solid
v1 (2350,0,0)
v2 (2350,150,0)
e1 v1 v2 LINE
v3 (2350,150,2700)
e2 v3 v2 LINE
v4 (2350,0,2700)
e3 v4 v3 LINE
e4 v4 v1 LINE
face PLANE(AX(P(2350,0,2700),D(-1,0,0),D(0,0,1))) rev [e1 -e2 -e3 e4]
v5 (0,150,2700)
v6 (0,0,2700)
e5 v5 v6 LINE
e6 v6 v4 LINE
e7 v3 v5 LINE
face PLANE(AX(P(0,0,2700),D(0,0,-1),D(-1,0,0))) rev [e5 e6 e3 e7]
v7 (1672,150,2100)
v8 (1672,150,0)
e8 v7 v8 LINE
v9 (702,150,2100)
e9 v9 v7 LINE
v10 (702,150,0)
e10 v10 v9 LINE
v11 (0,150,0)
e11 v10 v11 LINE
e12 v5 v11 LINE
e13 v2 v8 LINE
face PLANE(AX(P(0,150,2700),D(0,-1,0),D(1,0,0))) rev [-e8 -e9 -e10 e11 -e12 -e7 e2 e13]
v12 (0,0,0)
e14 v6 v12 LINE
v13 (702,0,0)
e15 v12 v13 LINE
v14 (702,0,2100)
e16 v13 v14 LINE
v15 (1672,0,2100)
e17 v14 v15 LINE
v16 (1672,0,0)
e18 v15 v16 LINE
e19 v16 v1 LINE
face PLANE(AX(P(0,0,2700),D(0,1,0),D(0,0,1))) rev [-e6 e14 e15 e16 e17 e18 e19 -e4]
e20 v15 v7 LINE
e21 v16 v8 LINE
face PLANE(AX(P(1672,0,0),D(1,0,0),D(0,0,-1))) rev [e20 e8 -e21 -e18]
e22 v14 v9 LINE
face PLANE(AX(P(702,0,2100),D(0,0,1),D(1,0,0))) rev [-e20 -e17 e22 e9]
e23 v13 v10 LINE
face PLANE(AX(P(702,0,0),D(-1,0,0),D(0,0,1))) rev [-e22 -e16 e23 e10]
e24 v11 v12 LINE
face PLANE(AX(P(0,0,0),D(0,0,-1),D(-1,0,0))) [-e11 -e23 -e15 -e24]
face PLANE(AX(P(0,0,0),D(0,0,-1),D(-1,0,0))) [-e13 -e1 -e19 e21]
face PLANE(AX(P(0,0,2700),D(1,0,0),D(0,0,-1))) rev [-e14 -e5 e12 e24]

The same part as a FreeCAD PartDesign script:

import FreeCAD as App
import Part
import Sketcher
from FreeCAD import Vector

doc = App.newDocument("Part")
body = doc.addObject("PartDesign::Body", "Body")

# Sketch on XY plane
sketch1 = body.newObject("Sketcher::SketchObject", "Sketch")
sketch1.AttachmentSupport = (doc.getObject("XY_Plane"), [""])
sketch1.MapMode = "FlatFace"
sketch1.addGeometry(Part.LineSegment(Vector(0, 150, 0), Vector(0, 0, 0)), False)
sketch1.addGeometry(Part.LineSegment(Vector(0, 0, 0), Vector(2350, 0, 0)), False)
sketch1.addGeometry(Part.LineSegment(Vector(2350, 0, 0), Vector(2350, 150, 0)), False)
sketch1.addGeometry(Part.LineSegment(Vector(2350, 150, 0), Vector(0, 150, 0)), False)
sketch1.addConstraint(Sketcher.Constraint("Coincident", 0, 2, 1, 1))
sketch1.addConstraint(Sketcher.Constraint("Coincident", 1, 2, 2, 1))
sketch1.addConstraint(Sketcher.Constraint("Coincident", 2, 2, 3, 1))
sketch1.addConstraint(Sketcher.Constraint("Coincident", 3, 2, 0, 1))
sketch1.addConstraint(Sketcher.Constraint("Vertical", 0))
sketch1.addConstraint(Sketcher.Constraint("Horizontal", 1))
sketch1.addConstraint(Sketcher.Constraint("Vertical", 2))
sketch1.addConstraint(Sketcher.Constraint("Horizontal", 3))
sketch1.addConstraint(Sketcher.Constraint("Coincident", 0, 2, -1, 1))
sketch1.addConstraint(Sketcher.Constraint("DistanceX", 1, 1, 1, 2, 2350.0))
sketch1.addConstraint(Sketcher.Constraint("DistanceY", 0, 2, 0, 1, 150.0))
pad1 = body.newObject("PartDesign::Pad", "Pad")
pad1.Profile = sketch1
pad1.Length = 2700

# Sketch on XZ plane
sketch2 = body.newObject("Sketcher::SketchObject", "Sketch001")
sketch2.AttachmentSupport = (doc.getObject("XZ_Plane"), [""])
sketch2.MapMode = "FlatFace"
sketch2.AttachmentOffset = App.Placement(Vector(0, 0, -150), App.Rotation())
sketch2.addGeometry(Part.LineSegment(Vector(702, 0, 0), Vector(702, 2100, 0)), False)
sketch2.addGeometry(Part.LineSegment(Vector(702, 2100, 0), Vector(1672, 2100, 0)), False)
sketch2.addGeometry(Part.LineSegment(Vector(1672, 2100, 0), Vector(1672, 0, 0)), False)
sketch2.addGeometry(Part.LineSegment(Vector(1672, 0, 0), Vector(702, 0, 0)), False)
sketch2.addConstraint(Sketcher.Constraint("Coincident", 0, 2, 1, 1))
sketch2.addConstraint(Sketcher.Constraint("Coincident", 1, 2, 2, 1))
sketch2.addConstraint(Sketcher.Constraint("Coincident", 2, 2, 3, 1))
sketch2.addConstraint(Sketcher.Constraint("Coincident", 3, 2, 0, 1))
sketch2.addConstraint(Sketcher.Constraint("Vertical", 0))
sketch2.addConstraint(Sketcher.Constraint("Horizontal", 1))
sketch2.addConstraint(Sketcher.Constraint("Vertical", 2))
sketch2.addConstraint(Sketcher.Constraint("Horizontal", 3))
sketch2.addConstraint(Sketcher.Constraint("PointOnObject", 2, 2, -1))
sketch2.addConstraint(Sketcher.Constraint("DistanceX", 1, 1, 1, 2, 970.0))
sketch2.addConstraint(Sketcher.Constraint("DistanceY", 0, 1, 0, 2, 2100.0))
sketch2.addConstraint(Sketcher.Constraint("DistanceX", -1, 1, 0, 2, 702.0))
pocket1 = body.newObject("PartDesign::Pocket", "Pocket")
pocket1.Profile = sketch2
pocket1.Type = "ThroughAll"
pocket1.Reversed = True

doc.recompute()
